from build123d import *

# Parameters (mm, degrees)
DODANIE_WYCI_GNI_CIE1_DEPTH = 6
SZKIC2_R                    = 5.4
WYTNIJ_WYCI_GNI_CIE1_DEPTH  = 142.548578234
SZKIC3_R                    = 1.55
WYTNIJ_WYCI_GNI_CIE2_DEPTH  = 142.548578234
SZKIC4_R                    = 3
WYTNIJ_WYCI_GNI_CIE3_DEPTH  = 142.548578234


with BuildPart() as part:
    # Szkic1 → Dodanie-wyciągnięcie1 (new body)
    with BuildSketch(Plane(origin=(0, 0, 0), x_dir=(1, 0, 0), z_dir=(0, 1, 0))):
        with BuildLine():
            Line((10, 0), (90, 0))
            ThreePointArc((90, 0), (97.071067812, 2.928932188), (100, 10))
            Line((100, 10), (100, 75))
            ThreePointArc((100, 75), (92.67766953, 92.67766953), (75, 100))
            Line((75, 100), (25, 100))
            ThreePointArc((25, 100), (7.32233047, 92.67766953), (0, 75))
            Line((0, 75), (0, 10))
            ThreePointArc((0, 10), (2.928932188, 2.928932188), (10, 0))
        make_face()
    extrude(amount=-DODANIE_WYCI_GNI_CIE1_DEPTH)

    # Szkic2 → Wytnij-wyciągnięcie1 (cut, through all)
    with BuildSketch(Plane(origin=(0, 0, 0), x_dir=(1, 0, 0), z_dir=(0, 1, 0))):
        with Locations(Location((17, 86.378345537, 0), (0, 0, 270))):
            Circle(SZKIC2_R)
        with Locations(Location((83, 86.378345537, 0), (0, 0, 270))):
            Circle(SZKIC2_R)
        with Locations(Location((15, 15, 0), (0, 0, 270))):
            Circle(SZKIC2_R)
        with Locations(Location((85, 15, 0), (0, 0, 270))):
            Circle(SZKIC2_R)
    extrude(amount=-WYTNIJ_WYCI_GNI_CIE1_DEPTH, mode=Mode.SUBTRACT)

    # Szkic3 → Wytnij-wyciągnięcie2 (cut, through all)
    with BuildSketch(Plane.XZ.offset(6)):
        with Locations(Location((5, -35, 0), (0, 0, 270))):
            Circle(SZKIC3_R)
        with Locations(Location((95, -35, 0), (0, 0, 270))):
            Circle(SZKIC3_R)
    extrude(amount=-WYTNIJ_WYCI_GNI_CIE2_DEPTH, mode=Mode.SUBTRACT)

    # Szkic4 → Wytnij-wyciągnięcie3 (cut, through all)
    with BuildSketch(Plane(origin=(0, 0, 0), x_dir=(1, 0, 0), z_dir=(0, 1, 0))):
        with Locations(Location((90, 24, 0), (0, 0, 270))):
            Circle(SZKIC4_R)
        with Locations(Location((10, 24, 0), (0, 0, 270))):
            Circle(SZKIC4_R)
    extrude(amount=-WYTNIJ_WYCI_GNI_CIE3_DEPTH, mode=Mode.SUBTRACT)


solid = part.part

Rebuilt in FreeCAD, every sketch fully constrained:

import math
import FreeCAD as App
import Part
import Sketcher

V = App.Vector
Q = App.Units.Quantity

doc = App.newDocument("Part")
body = doc.addObject("PartDesign::Body", "Body")

# Sketch on XZ plane
sketch1 = doc.addObject("Sketcher::SketchObject", "Sketch")
body.addObject(sketch1)
sketch1.AttachmentSupport = (doc.XZ_Plane, [""])
sketch1.MapMode = "FlatFace"
sketch1.addGeometry([
    Part.LineSegment(V(10, 0, 0), V(90, 0, 0)),  # 0
    Part.ArcOfCircle(Part.Circle(V(90, -10, 0), V(0, 0, 1), 10), math.radians(0), math.radians(90)),  # 1
    Part.LineSegment(V(100, -10, 0), V(100, -75, 0)),  # 2
    Part.ArcOfCircle(Part.Circle(V(75, -75, 0), V(0, 0, 1), 25), math.radians(-90), math.radians(0)),  # 3
    Part.LineSegment(V(75, -100, 0), V(25, -100, 0)),  # 4
    Part.ArcOfCircle(Part.Circle(V(25, -75, 0), V(0, 0, 1), 25), math.radians(180), math.radians(270)),  # 5
    Part.LineSegment(V(0, -75, 0), V(0, -10, 0)),  # 6
    Part.ArcOfCircle(Part.Circle(V(10, -10, 0), V(0, 0, 1), 10), math.radians(90), math.radians(180)),  # 7
], False)
sketch1.addConstraint([
    Sketcher.Constraint("Tangent", 0, 2, 1, 2),
    Sketcher.Constraint("Tangent", 1, 1, 2, 1),
    Sketcher.Constraint("Tangent", 2, 2, 3, 2),
    Sketcher.Constraint("Tangent", 3, 1, 4, 1),
    Sketcher.Constraint("Tangent", 4, 2, 5, 2),
    Sketcher.Constraint("Tangent", 5, 1, 6, 1),
    Sketcher.Constraint("Tangent", 6, 2, 7, 2),
    Sketcher.Constraint("Tangent", 7, 1, 0, 1),
    Sketcher.Constraint("Horizontal", 0),
    Sketcher.Constraint("Vertical", 2),
    Sketcher.Constraint("Horizontal", 4),
    Sketcher.Constraint("Vertical", 6),
    Sketcher.Constraint("Equal", 3, 5),
    Sketcher.Constraint("Equal", 1, 7),
    Sketcher.Constraint("PointOnObject", 0, 2, -1),
    Sketcher.Constraint("PointOnObject", 5, 1, -2),
    Sketcher.Constraint("Radius", 1, Q("10 mm")),
    Sketcher.Constraint("Radius", 3, Q("25 mm")),
    Sketcher.Constraint("DistanceX", 0, 1, 0, 2, Q("80 mm")),
    Sketcher.Constraint("DistanceY", 2, 2, 2, 1, Q("65 mm")),
])
pad1 = doc.addObject("PartDesign::Pad", "Pad")
body.addObject(pad1)
pad1.Profile = sketch1
pad1.Length = 6

# Sketch on XZ plane
sketch2 = doc.addObject("Sketcher::SketchObject", "Sketch001")
body.addObject(sketch2)
sketch2.AttachmentSupport = (doc.XZ_Plane, [""])
sketch2.MapMode = "FlatFace"
sketch2.addGeometry([
    Part.Circle(V(17, -86, 0), V(0, 0, 1), 5),
    Part.Circle(V(83, -86, 0), V(0, 0, 1), 5),
    Part.Circle(V(15, -15, 0), V(0, 0, 1), 5),
    Part.Circle(V(85, -15, 0), V(0, 0, 1), 5),
], False)
sketch2.addConstraint([
    Sketcher.Constraint("Equal", 0, 1),
    Sketcher.Constraint("Equal", 1, 2),
    Sketcher.Constraint("Equal", 2, 3),
    Sketcher.Constraint("Horizontal", 0, 3, 1, 3),
    Sketcher.Constraint("Horizontal", 2, 3, 3, 3),
    Sketcher.Constraint("Diameter", 0, Q("10.8 mm")),
    Sketcher.Constraint("DistanceX", -1, 1, 0, 3, Q("17 mm")),
    Sketcher.Constraint("DistanceX", -1, 1, 1, 3, Q("83 mm")),
    Sketcher.Constraint("DistanceX", -1, 1, 2, 3, Q("15 mm")),
    Sketcher.Constraint("DistanceY", 2, 3, -1, 1, Q("15 mm")),
    Sketcher.Constraint("DistanceX", -1, 1, 3, 3, Q("85 mm")),
    Sketcher.Constraint("DistanceY", 0, 3, -1, 1, Q("86.378346 mm")),
])
pocket1 = doc.addObject("PartDesign::Pocket", "Pocket")
body.addObject(pocket1)
pocket1.Profile = sketch2
pocket1.Type = "ThroughAll"
pocket1.Reversed = True

# Sketch on XZ plane
sketch3 = doc.addObject("Sketcher::SketchObject", "Sketch002")
body.addObject(sketch3)
sketch3.AttachmentSupport = (doc.XZ_Plane, [""])
sketch3.MapMode = "FlatFace"
sketch3.AttachmentOffset = App.Placement(V(0, 0, 6), App.Rotation())
sketch3.addGeometry([
    Part.Circle(V(5, -35, 0), V(0, 0, 1), 1.6),
    Part.Circle(V(95, -35, 0), V(0, 0, 1), 1.6),
], False)
sketch3.addConstraint([
    Sketcher.Constraint("Equal", 0, 1),
    Sketcher.Constraint("Horizontal", 0, 3, 1, 3),
    Sketcher.Constraint("Diameter", 0, Q("3.1 mm")),
    Sketcher.Constraint("DistanceX", -1, 1, 0, 3, Q("5 mm")),
    Sketcher.Constraint("DistanceY", 0, 3, -1, 1, Q("35 mm")),
    Sketcher.Constraint("DistanceX", -1, 1, 1, 3, Q("95 mm")),
])
pocket2 = doc.addObject("PartDesign::Pocket", "Pocket001")
body.addObject(pocket2)
pocket2.Profile = sketch3
pocket2.Type = "ThroughAll"

# Sketch on XZ plane
sketch4 = doc.addObject("Sketcher::SketchObject", "Sketch003")
body.addObject(sketch4)
sketch4.AttachmentSupport = (doc.XZ_Plane, [""])
sketch4.MapMode = "FlatFace"
sketch4.addGeometry([
    Part.Circle(V(90, -24, 0), V(0, 0, 1), 3),
    Part.Circle(V(10, -24, 0), V(0, 0, 1), 3),
], False)
sketch4.addConstraint([
    Sketcher.Constraint("Equal", 0, 1),
    Sketcher.Constraint("Horizontal", 0, 3, 1, 3),
    Sketcher.Constraint("Diameter", 0, Q("6 mm")),
    Sketcher.Constraint("DistanceX", -1, 1, 0, 3, Q("90 mm")),
    Sketcher.Constraint("DistanceY", 0, 3, -1, 1, Q("24 mm")),
    Sketcher.Constraint("DistanceX", -1, 1, 1, 3, Q("10 mm")),
])
pocket3 = doc.addObject("PartDesign::Pocket", "Pocket002")
body.addObject(pocket3)
pocket3.Profile = sketch4
pocket3.Type = "ThroughAll"
pocket3.Reversed = True

doc.recompute()
